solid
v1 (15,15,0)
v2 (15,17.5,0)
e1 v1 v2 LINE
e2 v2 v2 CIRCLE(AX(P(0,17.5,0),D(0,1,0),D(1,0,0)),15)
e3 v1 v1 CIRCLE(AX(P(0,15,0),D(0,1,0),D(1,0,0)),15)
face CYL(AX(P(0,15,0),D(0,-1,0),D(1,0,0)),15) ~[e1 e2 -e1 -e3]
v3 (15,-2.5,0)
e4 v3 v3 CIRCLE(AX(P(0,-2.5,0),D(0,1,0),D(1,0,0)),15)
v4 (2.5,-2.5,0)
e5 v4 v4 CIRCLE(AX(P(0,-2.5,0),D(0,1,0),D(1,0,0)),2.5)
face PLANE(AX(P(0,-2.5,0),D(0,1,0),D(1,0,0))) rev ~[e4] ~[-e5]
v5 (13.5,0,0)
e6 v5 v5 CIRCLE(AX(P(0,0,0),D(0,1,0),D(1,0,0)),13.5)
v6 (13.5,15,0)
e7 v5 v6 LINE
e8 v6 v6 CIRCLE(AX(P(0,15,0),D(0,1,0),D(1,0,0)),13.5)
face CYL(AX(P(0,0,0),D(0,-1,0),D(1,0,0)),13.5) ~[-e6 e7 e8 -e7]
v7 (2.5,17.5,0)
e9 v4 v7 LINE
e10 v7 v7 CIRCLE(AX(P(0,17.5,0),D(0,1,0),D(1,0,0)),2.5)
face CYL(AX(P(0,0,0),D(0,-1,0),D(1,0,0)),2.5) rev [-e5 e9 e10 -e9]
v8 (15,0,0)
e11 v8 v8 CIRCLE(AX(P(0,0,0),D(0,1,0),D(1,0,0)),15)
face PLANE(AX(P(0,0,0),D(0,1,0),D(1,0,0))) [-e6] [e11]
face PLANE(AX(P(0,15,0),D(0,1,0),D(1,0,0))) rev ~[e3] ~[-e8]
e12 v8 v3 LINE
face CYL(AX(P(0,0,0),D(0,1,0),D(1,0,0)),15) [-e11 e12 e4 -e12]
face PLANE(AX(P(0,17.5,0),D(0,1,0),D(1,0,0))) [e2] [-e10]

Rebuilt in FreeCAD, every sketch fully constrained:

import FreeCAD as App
import Part
import Sketcher

V = App.Vector
Q = App.Units.Quantity

doc = App.newDocument("Part")
body = doc.addObject("PartDesign::Body", "Body")

# Sketch on XZ plane
sketch1 = body.newObject("Sketcher::SketchObject", "Sketch")
sketch1.AttachmentSupport = (doc.getObject("XZ_Plane"), [""])
sketch1.MapMode = "FlatFace"
sketch1.addGeometry(Part.Circle(V(0, 0, 0), V(0, 0, 1), 15), False)
sketch1.addGeometry(Part.Circle(V(0, 0, 0), V(0, 0, 1), 2.5), False)
sketch1.addConstraint(Sketcher.Constraint("Coincident", 0, 3, -1, 1))
sketch1.addConstraint(Sketcher.Constraint("Coincident", 1, 3, -1, 1))
sketch1.addConstraint(Sketcher.Constraint("Diameter", 1, Q("5 mm")))
sketch1.addConstraint(Sketcher.Constraint("Diameter", 0, Q("30 mm")))
pad1 = body.newObject("PartDesign::Pad", "Pad")
pad1.Profile = sketch1
pad1.Length = 2.5

# Sketch on XZ plane
sketch2 = body.newObject("Sketcher::SketchObject", "Sketch001")
sketch2.AttachmentSupport = (doc.getObject("XZ_Plane"), [""])
sketch2.MapMode = "FlatFace"
sketch2.addGeometry(Part.Circle(V(0, 0, 0), V(0, 0, 1), 13.5), False)
sketch2.addGeometry(Part.Circle(V(0, 0, 0), V(0, 0, 1), 2.5), False)
sketch2.addConstraint(Sketcher.Constraint("Coincident", 0, 3, -1, 1))
sketch2.addConstraint(Sketcher.Constraint("Coincident", 1, 3, -1, 1))
sketch2.addConstraint(Sketcher.Constraint("Diameter", 0, Q("27 mm")))
sketch2.addConstraint(Sketcher.Constraint("Diameter", 1, Q("5 mm")))
pad2 = body.newObject("PartDesign::Pad", "Pad001")
pad2.Profile = sketch2
pad2.Length = 15
pad2.Reversed = True

# Sketch on XZ plane
sketch3 = body.newObject("Sketcher::SketchObject", "Sketch002")
sketch3.AttachmentSupport = (doc.getObject("XZ_Plane"), [""])
sketch3.MapMode = "FlatFace"
sketch3.AttachmentOffset = App.Placement(V(0, 0, -15), App.Rotation())
sketch3.addGeometry(Part.Circle(V(0, 0, 0), V(0, 0, 1), 15), False)
sketch3.addGeometry(Part.Circle(V(0, 0, 0), V(0, 0, 1), 2.5), False)
sketch3.addConstraint(Sketcher.Constraint("Coincident", 0, 3, -1, 1))
sketch3.addConstraint(Sketcher.Constraint("Coincident", 1, 3, -1, 1))
sketch3.addConstraint(Sketcher.Constraint("Diameter", 1, Q("5 mm")))
sketch3.addConstraint(Sketcher.Constraint("Diameter", 0, Q("30 mm")))
pad3 = body.newObject("PartDesign::Pad", "Pad002")
pad3.Profile = sketch3
pad3.Length = 2.5
pad3.Reversed = True

doc.recompute()
